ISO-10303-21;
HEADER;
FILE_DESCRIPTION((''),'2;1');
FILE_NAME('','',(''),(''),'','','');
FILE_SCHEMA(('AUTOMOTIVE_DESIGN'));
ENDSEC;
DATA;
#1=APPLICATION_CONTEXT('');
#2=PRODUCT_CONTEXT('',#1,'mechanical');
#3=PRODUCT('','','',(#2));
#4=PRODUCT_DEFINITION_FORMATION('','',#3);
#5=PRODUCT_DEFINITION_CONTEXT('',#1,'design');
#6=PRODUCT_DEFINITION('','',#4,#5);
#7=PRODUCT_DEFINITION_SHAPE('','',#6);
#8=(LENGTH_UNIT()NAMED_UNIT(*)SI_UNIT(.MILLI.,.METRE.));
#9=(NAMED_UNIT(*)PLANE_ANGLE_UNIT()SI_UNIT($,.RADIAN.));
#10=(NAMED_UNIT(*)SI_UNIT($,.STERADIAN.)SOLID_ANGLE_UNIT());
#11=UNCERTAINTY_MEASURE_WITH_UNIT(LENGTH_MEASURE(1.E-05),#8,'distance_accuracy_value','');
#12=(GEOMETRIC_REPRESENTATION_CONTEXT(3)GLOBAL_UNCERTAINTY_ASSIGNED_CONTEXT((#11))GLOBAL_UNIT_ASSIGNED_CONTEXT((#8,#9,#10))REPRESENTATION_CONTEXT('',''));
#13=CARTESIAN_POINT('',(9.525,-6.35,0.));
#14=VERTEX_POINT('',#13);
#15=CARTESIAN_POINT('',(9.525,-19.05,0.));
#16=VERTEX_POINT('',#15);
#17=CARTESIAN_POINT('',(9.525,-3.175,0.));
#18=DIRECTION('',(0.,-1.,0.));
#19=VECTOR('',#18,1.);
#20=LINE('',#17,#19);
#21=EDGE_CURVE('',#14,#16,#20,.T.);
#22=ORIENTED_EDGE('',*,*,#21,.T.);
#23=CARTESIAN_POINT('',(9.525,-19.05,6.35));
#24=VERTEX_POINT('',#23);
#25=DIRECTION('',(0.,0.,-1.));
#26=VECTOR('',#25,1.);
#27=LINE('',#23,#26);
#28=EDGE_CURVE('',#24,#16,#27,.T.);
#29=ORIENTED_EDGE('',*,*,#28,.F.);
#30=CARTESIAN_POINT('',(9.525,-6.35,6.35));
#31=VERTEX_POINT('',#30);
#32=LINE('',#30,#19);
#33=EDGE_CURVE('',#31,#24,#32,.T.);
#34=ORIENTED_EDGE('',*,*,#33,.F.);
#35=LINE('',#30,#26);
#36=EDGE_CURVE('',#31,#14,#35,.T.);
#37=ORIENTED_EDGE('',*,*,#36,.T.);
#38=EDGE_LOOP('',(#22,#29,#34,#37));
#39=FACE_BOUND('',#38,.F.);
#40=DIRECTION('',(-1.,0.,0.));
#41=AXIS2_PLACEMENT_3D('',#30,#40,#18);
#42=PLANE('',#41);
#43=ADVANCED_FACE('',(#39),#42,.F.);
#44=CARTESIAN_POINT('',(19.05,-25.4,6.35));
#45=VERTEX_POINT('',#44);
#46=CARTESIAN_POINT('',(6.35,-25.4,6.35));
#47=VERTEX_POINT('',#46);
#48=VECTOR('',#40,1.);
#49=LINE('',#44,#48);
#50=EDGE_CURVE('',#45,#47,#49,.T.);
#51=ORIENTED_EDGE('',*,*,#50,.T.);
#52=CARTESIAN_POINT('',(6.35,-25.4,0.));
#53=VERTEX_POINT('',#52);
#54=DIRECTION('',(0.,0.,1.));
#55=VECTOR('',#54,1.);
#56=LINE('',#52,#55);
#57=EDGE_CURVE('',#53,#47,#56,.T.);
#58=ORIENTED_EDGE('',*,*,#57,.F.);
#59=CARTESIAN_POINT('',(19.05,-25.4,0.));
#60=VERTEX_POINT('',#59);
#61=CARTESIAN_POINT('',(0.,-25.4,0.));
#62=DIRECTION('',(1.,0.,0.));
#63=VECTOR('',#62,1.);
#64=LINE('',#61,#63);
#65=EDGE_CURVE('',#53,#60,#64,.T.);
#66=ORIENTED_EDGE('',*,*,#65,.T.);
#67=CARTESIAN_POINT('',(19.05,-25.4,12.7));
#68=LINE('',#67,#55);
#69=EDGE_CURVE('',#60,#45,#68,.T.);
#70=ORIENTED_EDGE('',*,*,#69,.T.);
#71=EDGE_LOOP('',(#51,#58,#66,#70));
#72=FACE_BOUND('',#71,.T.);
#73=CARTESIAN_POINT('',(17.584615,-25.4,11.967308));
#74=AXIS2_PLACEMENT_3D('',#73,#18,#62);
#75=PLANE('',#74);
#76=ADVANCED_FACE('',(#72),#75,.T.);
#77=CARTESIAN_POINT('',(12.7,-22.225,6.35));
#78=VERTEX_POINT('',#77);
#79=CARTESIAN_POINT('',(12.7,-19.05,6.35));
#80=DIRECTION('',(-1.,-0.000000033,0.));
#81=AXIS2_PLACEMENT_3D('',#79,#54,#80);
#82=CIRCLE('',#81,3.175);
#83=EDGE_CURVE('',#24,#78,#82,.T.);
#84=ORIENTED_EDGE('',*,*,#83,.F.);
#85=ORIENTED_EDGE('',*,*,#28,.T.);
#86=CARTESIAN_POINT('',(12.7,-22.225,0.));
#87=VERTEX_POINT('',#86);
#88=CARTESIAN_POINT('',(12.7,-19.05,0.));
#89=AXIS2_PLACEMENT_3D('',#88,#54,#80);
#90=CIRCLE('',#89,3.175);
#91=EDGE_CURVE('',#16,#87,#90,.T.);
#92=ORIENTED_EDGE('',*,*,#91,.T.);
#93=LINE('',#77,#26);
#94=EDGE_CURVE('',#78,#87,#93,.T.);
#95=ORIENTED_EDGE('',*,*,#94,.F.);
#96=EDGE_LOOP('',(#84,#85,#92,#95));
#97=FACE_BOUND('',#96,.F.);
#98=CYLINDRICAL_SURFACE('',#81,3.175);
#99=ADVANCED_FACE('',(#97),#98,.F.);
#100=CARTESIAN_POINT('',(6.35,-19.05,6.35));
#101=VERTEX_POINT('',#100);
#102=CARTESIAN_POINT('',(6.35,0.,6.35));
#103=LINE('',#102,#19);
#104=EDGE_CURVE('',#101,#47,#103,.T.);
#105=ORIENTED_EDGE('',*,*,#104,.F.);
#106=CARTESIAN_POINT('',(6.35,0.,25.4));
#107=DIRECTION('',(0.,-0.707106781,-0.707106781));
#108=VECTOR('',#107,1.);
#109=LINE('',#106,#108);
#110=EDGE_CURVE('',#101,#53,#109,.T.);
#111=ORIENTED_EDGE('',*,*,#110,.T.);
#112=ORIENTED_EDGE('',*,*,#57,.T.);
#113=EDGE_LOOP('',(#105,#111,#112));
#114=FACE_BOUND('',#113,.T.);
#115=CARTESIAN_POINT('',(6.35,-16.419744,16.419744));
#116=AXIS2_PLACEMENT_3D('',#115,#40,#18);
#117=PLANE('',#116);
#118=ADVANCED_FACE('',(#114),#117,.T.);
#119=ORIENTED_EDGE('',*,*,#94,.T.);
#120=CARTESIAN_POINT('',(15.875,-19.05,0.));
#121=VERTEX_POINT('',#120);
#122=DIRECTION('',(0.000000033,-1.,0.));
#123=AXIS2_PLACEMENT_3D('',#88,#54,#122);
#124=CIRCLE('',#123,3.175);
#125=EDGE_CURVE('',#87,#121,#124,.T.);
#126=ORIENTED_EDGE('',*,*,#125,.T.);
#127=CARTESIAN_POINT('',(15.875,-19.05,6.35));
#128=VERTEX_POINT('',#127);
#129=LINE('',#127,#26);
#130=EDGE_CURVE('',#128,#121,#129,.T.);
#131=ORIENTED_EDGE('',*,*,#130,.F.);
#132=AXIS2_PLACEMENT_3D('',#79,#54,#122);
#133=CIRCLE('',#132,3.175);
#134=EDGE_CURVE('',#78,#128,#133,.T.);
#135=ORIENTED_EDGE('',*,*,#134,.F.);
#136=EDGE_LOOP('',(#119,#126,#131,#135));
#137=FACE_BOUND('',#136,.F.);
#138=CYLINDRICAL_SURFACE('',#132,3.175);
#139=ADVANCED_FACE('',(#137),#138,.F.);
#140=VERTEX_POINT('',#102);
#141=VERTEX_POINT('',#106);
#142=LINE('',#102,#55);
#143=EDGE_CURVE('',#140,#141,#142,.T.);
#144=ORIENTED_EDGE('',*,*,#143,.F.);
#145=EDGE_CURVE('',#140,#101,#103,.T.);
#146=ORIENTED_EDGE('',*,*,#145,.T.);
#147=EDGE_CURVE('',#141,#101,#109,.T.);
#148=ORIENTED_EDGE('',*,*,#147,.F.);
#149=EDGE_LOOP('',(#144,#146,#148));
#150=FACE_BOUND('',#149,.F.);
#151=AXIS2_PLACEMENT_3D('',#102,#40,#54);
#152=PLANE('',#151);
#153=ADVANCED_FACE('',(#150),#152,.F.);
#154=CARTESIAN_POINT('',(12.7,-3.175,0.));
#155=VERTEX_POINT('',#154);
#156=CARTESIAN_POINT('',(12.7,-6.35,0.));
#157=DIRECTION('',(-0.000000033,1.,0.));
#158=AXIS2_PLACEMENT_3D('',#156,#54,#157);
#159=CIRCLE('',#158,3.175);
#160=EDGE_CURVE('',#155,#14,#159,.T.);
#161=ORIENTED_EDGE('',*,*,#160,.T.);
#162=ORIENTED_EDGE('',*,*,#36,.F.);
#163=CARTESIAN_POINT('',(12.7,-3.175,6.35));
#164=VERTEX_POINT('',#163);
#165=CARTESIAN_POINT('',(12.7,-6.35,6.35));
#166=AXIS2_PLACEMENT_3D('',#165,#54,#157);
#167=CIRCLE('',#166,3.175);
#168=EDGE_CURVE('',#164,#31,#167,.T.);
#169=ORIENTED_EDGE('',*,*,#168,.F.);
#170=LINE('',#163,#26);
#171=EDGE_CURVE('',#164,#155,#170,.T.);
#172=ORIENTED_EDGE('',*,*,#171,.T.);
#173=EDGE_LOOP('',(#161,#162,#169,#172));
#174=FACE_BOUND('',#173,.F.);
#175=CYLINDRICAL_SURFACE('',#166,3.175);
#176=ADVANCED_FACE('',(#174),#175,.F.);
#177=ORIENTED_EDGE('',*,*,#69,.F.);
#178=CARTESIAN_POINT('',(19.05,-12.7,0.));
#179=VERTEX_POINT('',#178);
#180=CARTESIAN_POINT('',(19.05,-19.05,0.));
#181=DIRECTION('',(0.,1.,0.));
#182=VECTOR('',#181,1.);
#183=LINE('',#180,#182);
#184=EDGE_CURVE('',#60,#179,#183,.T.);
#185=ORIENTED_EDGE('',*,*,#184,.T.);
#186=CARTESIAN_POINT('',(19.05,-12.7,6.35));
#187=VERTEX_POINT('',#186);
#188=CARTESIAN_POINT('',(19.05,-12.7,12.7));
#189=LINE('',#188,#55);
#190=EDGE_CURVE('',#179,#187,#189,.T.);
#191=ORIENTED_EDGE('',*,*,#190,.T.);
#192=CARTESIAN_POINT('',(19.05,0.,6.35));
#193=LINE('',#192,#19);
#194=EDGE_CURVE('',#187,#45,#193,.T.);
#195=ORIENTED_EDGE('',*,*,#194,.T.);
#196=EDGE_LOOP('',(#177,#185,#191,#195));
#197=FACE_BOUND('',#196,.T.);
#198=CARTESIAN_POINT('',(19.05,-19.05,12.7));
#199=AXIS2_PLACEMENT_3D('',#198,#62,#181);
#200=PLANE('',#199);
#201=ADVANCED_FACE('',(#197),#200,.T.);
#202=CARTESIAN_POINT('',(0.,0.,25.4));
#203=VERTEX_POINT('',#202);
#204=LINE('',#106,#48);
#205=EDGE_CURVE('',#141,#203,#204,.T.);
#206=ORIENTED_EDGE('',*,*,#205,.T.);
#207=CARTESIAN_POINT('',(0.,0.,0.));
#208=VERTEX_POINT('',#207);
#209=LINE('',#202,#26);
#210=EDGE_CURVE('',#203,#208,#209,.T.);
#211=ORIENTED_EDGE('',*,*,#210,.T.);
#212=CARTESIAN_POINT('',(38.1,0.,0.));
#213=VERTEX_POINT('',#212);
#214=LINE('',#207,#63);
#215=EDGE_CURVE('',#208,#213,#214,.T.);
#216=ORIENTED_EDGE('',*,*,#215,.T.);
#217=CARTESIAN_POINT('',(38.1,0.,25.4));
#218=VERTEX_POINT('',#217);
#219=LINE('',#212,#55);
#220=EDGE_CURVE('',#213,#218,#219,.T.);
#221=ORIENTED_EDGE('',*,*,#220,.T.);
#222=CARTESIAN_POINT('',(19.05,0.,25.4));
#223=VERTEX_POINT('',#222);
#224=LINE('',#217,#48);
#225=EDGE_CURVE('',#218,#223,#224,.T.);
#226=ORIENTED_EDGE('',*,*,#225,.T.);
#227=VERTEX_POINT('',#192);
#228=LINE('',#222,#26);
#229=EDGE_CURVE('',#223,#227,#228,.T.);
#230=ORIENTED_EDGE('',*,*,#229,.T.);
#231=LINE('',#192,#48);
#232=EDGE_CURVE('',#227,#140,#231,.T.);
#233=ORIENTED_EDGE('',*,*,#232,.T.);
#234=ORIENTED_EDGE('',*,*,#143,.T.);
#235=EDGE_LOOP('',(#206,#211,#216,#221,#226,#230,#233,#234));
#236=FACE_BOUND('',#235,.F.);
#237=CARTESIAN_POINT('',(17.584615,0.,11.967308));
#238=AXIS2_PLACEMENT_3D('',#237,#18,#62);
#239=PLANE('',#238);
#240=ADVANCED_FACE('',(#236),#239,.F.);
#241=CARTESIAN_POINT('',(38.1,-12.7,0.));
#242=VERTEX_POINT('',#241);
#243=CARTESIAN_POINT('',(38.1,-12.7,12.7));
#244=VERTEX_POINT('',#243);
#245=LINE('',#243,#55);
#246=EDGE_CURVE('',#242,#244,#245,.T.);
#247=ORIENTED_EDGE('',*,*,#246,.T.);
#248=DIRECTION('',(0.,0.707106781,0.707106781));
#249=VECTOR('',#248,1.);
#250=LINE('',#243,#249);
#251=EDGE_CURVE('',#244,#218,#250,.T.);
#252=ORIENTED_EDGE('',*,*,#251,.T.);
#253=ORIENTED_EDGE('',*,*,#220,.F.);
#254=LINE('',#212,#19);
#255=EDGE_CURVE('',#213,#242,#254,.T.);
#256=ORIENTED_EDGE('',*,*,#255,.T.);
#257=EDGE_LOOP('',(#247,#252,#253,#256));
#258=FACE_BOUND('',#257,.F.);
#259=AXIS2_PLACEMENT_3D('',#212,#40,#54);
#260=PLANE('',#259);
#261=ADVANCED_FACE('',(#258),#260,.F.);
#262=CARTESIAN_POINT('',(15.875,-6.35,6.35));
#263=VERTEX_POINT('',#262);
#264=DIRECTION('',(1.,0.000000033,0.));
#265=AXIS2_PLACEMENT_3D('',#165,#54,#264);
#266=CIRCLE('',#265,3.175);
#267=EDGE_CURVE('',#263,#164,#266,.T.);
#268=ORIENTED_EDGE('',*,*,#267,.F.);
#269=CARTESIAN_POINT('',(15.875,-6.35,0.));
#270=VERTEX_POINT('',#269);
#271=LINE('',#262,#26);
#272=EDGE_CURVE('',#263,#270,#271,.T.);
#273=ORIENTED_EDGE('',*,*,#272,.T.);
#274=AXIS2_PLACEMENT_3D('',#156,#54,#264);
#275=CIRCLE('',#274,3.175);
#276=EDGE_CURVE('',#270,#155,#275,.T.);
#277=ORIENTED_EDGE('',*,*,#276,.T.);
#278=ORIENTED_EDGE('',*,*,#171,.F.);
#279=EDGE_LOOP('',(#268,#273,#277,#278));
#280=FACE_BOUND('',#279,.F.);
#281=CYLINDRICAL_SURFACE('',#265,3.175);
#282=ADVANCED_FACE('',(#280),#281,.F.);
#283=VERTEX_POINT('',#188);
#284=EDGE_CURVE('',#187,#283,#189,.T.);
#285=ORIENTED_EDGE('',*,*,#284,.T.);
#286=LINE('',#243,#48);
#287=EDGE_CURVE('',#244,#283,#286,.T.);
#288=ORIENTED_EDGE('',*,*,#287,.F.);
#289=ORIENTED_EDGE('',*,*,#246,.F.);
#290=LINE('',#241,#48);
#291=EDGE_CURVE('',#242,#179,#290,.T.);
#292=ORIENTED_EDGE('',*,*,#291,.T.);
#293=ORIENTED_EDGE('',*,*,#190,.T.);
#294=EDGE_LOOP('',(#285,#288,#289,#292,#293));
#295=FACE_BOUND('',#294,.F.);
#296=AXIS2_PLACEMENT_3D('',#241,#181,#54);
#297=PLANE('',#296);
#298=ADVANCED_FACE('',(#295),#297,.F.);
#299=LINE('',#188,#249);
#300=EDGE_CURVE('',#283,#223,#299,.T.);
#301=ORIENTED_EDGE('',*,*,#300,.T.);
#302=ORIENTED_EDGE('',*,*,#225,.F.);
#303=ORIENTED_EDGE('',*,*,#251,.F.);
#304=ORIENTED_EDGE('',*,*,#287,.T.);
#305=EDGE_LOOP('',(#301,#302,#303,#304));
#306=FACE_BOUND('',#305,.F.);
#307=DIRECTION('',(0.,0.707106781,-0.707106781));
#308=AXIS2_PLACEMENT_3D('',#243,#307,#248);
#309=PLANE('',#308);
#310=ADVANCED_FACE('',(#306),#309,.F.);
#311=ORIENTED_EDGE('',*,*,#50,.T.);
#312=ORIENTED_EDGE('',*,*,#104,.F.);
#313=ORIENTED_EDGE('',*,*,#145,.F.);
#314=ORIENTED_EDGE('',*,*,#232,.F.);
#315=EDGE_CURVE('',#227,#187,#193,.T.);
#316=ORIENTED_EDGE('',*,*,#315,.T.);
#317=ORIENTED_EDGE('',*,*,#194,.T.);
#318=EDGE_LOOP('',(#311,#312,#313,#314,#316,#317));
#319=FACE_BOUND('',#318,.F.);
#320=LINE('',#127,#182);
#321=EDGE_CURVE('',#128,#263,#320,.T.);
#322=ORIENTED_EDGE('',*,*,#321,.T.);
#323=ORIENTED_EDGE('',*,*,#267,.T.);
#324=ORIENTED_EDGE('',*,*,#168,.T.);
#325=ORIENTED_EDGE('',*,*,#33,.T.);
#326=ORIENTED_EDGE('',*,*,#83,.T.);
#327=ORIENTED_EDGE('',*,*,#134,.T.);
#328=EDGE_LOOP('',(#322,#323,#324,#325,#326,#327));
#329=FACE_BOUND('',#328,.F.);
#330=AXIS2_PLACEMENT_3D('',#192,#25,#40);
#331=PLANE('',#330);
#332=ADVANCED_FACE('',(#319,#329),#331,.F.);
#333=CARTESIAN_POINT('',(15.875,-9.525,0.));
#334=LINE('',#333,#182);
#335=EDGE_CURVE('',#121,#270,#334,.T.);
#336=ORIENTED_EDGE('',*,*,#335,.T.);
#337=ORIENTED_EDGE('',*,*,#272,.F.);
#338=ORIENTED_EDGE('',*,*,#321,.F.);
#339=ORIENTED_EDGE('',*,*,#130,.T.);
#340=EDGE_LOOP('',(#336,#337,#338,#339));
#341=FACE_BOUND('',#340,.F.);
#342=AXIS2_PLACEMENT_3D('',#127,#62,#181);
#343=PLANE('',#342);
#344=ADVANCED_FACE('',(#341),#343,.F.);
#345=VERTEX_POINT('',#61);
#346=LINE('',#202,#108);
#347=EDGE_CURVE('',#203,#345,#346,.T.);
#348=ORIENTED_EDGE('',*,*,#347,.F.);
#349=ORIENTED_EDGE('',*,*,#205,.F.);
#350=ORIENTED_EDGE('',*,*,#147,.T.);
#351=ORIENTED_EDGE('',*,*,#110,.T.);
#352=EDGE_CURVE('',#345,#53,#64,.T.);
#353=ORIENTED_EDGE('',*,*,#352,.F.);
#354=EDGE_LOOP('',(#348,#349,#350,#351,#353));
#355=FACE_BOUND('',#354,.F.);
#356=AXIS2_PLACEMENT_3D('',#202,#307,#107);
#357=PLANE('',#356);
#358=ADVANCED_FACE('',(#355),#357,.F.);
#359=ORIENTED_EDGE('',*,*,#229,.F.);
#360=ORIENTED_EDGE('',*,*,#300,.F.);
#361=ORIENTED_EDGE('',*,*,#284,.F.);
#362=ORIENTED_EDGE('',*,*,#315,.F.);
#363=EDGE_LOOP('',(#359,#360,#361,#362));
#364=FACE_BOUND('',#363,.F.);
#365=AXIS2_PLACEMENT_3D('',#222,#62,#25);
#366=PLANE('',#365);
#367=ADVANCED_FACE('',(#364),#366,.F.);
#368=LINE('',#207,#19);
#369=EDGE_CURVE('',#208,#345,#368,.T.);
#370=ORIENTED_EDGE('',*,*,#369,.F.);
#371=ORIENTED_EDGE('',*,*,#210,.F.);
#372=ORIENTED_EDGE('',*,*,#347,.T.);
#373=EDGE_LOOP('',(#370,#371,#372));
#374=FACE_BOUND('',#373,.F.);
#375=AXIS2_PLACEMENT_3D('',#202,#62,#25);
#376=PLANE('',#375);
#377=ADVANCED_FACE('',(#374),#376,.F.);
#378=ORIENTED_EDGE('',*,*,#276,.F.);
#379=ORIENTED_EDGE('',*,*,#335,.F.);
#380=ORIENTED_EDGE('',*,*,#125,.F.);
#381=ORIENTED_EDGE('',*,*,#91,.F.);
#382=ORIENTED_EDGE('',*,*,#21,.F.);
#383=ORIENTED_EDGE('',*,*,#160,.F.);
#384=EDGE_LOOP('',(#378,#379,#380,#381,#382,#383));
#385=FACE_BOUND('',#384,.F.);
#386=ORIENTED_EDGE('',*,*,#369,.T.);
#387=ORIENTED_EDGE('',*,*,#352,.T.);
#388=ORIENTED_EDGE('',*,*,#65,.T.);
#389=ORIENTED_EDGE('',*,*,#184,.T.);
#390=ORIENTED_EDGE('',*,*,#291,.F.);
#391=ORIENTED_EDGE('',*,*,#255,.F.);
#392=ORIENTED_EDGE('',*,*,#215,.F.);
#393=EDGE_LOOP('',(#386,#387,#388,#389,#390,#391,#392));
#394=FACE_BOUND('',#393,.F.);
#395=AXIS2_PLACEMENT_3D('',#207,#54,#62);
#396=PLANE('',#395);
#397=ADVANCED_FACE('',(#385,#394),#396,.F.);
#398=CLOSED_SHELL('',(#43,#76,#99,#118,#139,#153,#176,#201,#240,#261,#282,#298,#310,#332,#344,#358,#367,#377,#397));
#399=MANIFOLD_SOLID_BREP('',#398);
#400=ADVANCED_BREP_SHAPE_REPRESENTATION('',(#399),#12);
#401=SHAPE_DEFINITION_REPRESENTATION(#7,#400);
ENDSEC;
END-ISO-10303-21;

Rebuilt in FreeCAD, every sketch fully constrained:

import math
import FreeCAD as App
import Part
import Sketcher
Q = App.Units.Quantity


def add_polygon(sketch, points):
    """Adds a closed chain of lines whose ends are joined by coincident constraints."""
    first, n = sketch.GeometryCount, len(points)
    for a, b in zip(points, points[1:] + points[:1]):
        sketch.addGeometry(Part.LineSegment(App.Vector(*a, 0), App.Vector(*b, 0)), False)
    for i in range(n):
        sketch.addConstraint(Sketcher.Constraint("Coincident", first + i, 2, first + (i + 1) % n, 1))

doc = App.newDocument("Part")
params = doc.addObject("Spreadsheet::Sheet", "Params")
for row, (alias, value) in enumerate([
    ("sketch1_height", "1 in"),
    ("sketch1_width", "1.5 in"),
    ("sketch1_width2", "0.5 in"),
    ("sketch1_width3", "0.75 in"),
    ("pad1_length", "1 in"),
    ("sketch2_height", "1 in"),
    ("sketch2_width", "0.5 in"),
    ("pocket1_length", "0.75 in"),
    ("sketch3_width", "0.5 in"),
    ("pocket2_length", "0.75 in"),
    ("sketch4_width", "1 in"),
    ("pocket3_length", "0.25 in"),
    ("sketch5_height", "0.5 in"),
    ("sketch5_radius", "0.125 in"),
    ("pocket4_length", "1 in"),
], start=1):
    params.set(f"A{row}", alias)
    params.set(f"B{row}", "=" + value)
    params.setAlias(f"B{row}", alias)

body = doc.addObject("PartDesign::Body", "Body")

# Sketch on XZ plane
sketch1 = body.newObject("Sketcher::SketchObject", "Sketch")
sketch1.AttachmentSupport = (doc.getObject("XZ_Plane"), [""])
sketch1.MapMode = "FlatFace"
add_polygon(sketch1, [(0, 25), (0, 0), (38, 0), (38, 25), (19, 25), (19, 6), (6, 6), (6, 25)])  # lines 0-7
sketch1.addConstraint(Sketcher.Constraint("Vertical", 0))
sketch1.addConstraint(Sketcher.Constraint("Horizontal", 1))
sketch1.addConstraint(Sketcher.Constraint("Vertical", 2))
sketch1.addConstraint(Sketcher.Constraint("Horizontal", 3))
sketch1.addConstraint(Sketcher.Constraint("Vertical", 4))
sketch1.addConstraint(Sketcher.Constraint("Horizontal", 5))
sketch1.addConstraint(Sketcher.Constraint("Vertical", 6))
sketch1.addConstraint(Sketcher.Constraint("Horizontal", 7))
sketch1.addConstraint(Sketcher.Constraint("Coincident", 0, 2, -1, 1))
sketch1.addConstraint(Sketcher.Constraint("Horizontal", 3, 2, 6, 2))
sketch1.addConstraint(Sketcher.Constraint("Equal", 3, 4))
sketch1.addConstraint(Sketcher.Constraint("DistanceY", 0, 2, 0, 1, Q("1 in")))
sketch1.addConstraint(Sketcher.Constraint("DistanceX", 1, 1, 1, 2, Q("1.5 in")))
sketch1.addConstraint(Sketcher.Constraint("DistanceX", 5, 2, 5, 1, Q("0.5 in")))
sketch1.addConstraint(Sketcher.Constraint("DistanceX", 3, 2, 3, 1, Q("0.75 in")))
sketch1.setExpression("Constraints[19]", "Params.sketch1_height")
sketch1.setExpression("Constraints[20]", "Params.sketch1_width")
sketch1.setExpression("Constraints[21]", "Params.sketch1_width2")
sketch1.setExpression("Constraints[22]", "Params.sketch1_width3")
pad1 = body.newObject("PartDesign::Pad", "Pad")
pad1.Profile = sketch1
pad1.setExpression("Length", "Params.pad1_length")

# Sketch on YZ plane
sketch2 = body.newObject("Sketcher::SketchObject", "Sketch001")
sketch2.AttachmentSupport = (doc.getObject("YZ_Plane"), [""])
sketch2.MapMode = "FlatFace"
sketch2.AttachmentOffset = App.Placement(App.Vector(0, 0, 1.5 * 25.4), App.Rotation())
add_polygon(sketch2, [(-25, 25), (-25, 0), (-13, 0), (-13, 25)])  # lines 0-3
sketch2.addConstraint(Sketcher.Constraint("Vertical", 0))
sketch2.addConstraint(Sketcher.Constraint("Horizontal", 1))
sketch2.addConstraint(Sketcher.Constraint("Vertical", 2))
sketch2.addConstraint(Sketcher.Constraint("Horizontal", 3))
sketch2.addConstraint(Sketcher.Constraint("PointOnObject", 0, 2, -1))
sketch2.addConstraint(Sketcher.Constraint("DistanceY", 0, 2, 0, 1, Q("1 in")))
sketch2.addConstraint(Sketcher.Constraint("DistanceX", 1, 1, 1, 2, Q("0.5 in")))
sketch2.addConstraint(Sketcher.Constraint("DistanceX", 0, 2, -1, 1, Q("1 in")))
sketch2.setExpression("Constraints[9]", "Params.sketch2_height")
sketch2.setExpression("Constraints[10]", "Params.sketch2_width")
pocket1 = body.newObject("PartDesign::Pocket", "Pocket")
pocket1.Profile = sketch2
pocket1.setExpression("Length", "Params.pocket1_length")

# Sketch on YZ plane
sketch3 = body.newObject("Sketcher::SketchObject", "Sketch002")
sketch3.AttachmentSupport = (doc.getObject("YZ_Plane"), [""])
sketch3.MapMode = "FlatFace"
sketch3.AttachmentOffset = App.Placement(App.Vector(0, 0, 1.5 * 25.4), App.Rotation())
add_polygon(sketch3, [(-13, 25), (-13, 13), (0, 25)])  # lines 0-2
sketch3.addConstraint(Sketcher.Constraint("Vertical", 0))
sketch3.addConstraint(Sketcher.Constraint("Horizontal", 2))
sketch3.addConstraint(Sketcher.Constraint("PointOnObject", 1, 2, -2))
sketch3.addConstraint(Sketcher.Constraint("Equal", 2, 0))
sketch3.addConstraint(Sketcher.Constraint("DistanceX", 2, 2, 2, 1, Q("0.5 in")))
sketch3.addConstraint(Sketcher.Constraint("DistanceY", -1, 1, 1, 2, Q("1 in")))
sketch3.setExpression("Constraints[7]", "Params.sketch3_width")
pocket2 = body.newObject("PartDesign::Pocket", "Pocket001")
pocket2.Profile = sketch3
pocket2.setExpression("Length", "Params.pocket2_length")

# Sketch on YZ plane
sketch4 = body.newObject("Sketcher::SketchObject", "Sketch003")
sketch4.AttachmentSupport = (doc.getObject("YZ_Plane"), [""])
sketch4.MapMode = "FlatFace"
add_polygon(sketch4, [(-25, 25), (0, 25), (-25, 0)])  # lines 0-2
sketch4.addConstraint(Sketcher.Constraint("Horizontal", 0))
sketch4.addConstraint(Sketcher.Constraint("Vertical", 2))
sketch4.addConstraint(Sketcher.Constraint("PointOnObject", 0, 2, -2))
sketch4.addConstraint(Sketcher.Constraint("PointOnObject", 1, 2, -1))
sketch4.addConstraint(Sketcher.Constraint("Equal", 0, 2))
sketch4.addConstraint(Sketcher.Constraint("DistanceX", 0, 1, 0, 2, Q("1 in")))
sketch4.setExpression("Constraints[8]", "Params.sketch4_width")
pocket3 = body.newObject("PartDesign::Pocket", "Pocket002")
pocket3.Profile = sketch4
pocket3.setExpression("Length", "Params.pocket3_length")
pocket3.Reversed = True

# Sketch on XY plane
sketch5 = body.newObject("Sketcher::SketchObject", "Sketch004")
sketch5.AttachmentSupport = (doc.getObject("XY_Plane"), [""])
sketch5.MapMode = "FlatFace"
sketch5.AttachmentOffset = App.Placement(App.Vector(0, 0, 0.25 * 25.4), App.Rotation())
sketch5.addGeometry(Part.ArcOfCircle(Part.Circle(App.Vector(12.7, -19, 0), App.Vector(0, 0, 1), 3.2), math.radians(-90), math.radians(0)), False)
sketch5.addGeometry(Part.LineSegment(App.Vector(15.9, -19.1, 0), App.Vector(15.9, -6.3, 0)), False)
sketch5.addGeometry(Part.ArcOfCircle(Part.Circle(App.Vector(12.7, -6.4, 0), App.Vector(0, 0, 1), 3.2), math.radians(0), math.radians(90)), False)
sketch5.addGeometry(Part.ArcOfCircle(Part.Circle(App.Vector(12.7, -6.4, 0), App.Vector(0, 0, 1), 3.2), math.radians(90), math.radians(180)), False)
sketch5.addGeometry(Part.LineSegment(App.Vector(9.5, -6.3, 0), App.Vector(9.5, -19.1, 0)), False)
sketch5.addGeometry(Part.ArcOfCircle(Part.Circle(App.Vector(12.7, -19, 0), App.Vector(0, 0, 1), 3.2), math.radians(-180), math.radians(-90)), False)
sketch5.addConstraint(Sketcher.Constraint("Tangent", 0, 2, 1, 1))
sketch5.addConstraint(Sketcher.Constraint("Tangent", 1, 2, 2, 1))
sketch5.addConstraint(Sketcher.Constraint("Tangent", 2, 2, 3, 1))
sketch5.addConstraint(Sketcher.Constraint("Tangent", 3, 2, 4, 1))
sketch5.addConstraint(Sketcher.Constraint("Tangent", 4, 2, 5, 1))
sketch5.addConstraint(Sketcher.Constraint("Tangent", 5, 2, 0, 1))
sketch5.addConstraint(Sketcher.Constraint("Vertical", 1))
sketch5.addConstraint(Sketcher.Constraint("Vertical", 4))
sketch5.addConstraint(Sketcher.Constraint("Equal", 0, 2))
sketch5.addConstraint(Sketcher.Constraint("Equal", 2, 3))
sketch5.addConstraint(Sketcher.Constraint("Vertical", 5, 3, 2, 2))
sketch5.addConstraint(Sketcher.Constraint("Vertical", 2, 2, 5, 2))
sketch5.addConstraint(Sketcher.Constraint("DistanceY", 1, 1, 1, 2, Q("0.5 in")))
sketch5.addConstraint(Sketcher.Constraint("Radius", 0, Q("0.125 in")))
sketch5.addConstraint(Sketcher.Constraint("DistanceX", -1, 1, 0, 3, Q("0.5 in")))
sketch5.addConstraint(Sketcher.Constraint("DistanceY", 0, 3, -1, 1, Q("0.75 in")))
sketch5.setExpression("Constraints[12]", "Params.sketch5_height")
sketch5.setExpression("Constraints[13]", "Params.sketch5_radius")
pocket4 = body.newObject("PartDesign::Pocket", "Pocket003")
pocket4.Profile = sketch5
pocket4.setExpression("Length", "Params.pocket4_length")

doc.recompute()
